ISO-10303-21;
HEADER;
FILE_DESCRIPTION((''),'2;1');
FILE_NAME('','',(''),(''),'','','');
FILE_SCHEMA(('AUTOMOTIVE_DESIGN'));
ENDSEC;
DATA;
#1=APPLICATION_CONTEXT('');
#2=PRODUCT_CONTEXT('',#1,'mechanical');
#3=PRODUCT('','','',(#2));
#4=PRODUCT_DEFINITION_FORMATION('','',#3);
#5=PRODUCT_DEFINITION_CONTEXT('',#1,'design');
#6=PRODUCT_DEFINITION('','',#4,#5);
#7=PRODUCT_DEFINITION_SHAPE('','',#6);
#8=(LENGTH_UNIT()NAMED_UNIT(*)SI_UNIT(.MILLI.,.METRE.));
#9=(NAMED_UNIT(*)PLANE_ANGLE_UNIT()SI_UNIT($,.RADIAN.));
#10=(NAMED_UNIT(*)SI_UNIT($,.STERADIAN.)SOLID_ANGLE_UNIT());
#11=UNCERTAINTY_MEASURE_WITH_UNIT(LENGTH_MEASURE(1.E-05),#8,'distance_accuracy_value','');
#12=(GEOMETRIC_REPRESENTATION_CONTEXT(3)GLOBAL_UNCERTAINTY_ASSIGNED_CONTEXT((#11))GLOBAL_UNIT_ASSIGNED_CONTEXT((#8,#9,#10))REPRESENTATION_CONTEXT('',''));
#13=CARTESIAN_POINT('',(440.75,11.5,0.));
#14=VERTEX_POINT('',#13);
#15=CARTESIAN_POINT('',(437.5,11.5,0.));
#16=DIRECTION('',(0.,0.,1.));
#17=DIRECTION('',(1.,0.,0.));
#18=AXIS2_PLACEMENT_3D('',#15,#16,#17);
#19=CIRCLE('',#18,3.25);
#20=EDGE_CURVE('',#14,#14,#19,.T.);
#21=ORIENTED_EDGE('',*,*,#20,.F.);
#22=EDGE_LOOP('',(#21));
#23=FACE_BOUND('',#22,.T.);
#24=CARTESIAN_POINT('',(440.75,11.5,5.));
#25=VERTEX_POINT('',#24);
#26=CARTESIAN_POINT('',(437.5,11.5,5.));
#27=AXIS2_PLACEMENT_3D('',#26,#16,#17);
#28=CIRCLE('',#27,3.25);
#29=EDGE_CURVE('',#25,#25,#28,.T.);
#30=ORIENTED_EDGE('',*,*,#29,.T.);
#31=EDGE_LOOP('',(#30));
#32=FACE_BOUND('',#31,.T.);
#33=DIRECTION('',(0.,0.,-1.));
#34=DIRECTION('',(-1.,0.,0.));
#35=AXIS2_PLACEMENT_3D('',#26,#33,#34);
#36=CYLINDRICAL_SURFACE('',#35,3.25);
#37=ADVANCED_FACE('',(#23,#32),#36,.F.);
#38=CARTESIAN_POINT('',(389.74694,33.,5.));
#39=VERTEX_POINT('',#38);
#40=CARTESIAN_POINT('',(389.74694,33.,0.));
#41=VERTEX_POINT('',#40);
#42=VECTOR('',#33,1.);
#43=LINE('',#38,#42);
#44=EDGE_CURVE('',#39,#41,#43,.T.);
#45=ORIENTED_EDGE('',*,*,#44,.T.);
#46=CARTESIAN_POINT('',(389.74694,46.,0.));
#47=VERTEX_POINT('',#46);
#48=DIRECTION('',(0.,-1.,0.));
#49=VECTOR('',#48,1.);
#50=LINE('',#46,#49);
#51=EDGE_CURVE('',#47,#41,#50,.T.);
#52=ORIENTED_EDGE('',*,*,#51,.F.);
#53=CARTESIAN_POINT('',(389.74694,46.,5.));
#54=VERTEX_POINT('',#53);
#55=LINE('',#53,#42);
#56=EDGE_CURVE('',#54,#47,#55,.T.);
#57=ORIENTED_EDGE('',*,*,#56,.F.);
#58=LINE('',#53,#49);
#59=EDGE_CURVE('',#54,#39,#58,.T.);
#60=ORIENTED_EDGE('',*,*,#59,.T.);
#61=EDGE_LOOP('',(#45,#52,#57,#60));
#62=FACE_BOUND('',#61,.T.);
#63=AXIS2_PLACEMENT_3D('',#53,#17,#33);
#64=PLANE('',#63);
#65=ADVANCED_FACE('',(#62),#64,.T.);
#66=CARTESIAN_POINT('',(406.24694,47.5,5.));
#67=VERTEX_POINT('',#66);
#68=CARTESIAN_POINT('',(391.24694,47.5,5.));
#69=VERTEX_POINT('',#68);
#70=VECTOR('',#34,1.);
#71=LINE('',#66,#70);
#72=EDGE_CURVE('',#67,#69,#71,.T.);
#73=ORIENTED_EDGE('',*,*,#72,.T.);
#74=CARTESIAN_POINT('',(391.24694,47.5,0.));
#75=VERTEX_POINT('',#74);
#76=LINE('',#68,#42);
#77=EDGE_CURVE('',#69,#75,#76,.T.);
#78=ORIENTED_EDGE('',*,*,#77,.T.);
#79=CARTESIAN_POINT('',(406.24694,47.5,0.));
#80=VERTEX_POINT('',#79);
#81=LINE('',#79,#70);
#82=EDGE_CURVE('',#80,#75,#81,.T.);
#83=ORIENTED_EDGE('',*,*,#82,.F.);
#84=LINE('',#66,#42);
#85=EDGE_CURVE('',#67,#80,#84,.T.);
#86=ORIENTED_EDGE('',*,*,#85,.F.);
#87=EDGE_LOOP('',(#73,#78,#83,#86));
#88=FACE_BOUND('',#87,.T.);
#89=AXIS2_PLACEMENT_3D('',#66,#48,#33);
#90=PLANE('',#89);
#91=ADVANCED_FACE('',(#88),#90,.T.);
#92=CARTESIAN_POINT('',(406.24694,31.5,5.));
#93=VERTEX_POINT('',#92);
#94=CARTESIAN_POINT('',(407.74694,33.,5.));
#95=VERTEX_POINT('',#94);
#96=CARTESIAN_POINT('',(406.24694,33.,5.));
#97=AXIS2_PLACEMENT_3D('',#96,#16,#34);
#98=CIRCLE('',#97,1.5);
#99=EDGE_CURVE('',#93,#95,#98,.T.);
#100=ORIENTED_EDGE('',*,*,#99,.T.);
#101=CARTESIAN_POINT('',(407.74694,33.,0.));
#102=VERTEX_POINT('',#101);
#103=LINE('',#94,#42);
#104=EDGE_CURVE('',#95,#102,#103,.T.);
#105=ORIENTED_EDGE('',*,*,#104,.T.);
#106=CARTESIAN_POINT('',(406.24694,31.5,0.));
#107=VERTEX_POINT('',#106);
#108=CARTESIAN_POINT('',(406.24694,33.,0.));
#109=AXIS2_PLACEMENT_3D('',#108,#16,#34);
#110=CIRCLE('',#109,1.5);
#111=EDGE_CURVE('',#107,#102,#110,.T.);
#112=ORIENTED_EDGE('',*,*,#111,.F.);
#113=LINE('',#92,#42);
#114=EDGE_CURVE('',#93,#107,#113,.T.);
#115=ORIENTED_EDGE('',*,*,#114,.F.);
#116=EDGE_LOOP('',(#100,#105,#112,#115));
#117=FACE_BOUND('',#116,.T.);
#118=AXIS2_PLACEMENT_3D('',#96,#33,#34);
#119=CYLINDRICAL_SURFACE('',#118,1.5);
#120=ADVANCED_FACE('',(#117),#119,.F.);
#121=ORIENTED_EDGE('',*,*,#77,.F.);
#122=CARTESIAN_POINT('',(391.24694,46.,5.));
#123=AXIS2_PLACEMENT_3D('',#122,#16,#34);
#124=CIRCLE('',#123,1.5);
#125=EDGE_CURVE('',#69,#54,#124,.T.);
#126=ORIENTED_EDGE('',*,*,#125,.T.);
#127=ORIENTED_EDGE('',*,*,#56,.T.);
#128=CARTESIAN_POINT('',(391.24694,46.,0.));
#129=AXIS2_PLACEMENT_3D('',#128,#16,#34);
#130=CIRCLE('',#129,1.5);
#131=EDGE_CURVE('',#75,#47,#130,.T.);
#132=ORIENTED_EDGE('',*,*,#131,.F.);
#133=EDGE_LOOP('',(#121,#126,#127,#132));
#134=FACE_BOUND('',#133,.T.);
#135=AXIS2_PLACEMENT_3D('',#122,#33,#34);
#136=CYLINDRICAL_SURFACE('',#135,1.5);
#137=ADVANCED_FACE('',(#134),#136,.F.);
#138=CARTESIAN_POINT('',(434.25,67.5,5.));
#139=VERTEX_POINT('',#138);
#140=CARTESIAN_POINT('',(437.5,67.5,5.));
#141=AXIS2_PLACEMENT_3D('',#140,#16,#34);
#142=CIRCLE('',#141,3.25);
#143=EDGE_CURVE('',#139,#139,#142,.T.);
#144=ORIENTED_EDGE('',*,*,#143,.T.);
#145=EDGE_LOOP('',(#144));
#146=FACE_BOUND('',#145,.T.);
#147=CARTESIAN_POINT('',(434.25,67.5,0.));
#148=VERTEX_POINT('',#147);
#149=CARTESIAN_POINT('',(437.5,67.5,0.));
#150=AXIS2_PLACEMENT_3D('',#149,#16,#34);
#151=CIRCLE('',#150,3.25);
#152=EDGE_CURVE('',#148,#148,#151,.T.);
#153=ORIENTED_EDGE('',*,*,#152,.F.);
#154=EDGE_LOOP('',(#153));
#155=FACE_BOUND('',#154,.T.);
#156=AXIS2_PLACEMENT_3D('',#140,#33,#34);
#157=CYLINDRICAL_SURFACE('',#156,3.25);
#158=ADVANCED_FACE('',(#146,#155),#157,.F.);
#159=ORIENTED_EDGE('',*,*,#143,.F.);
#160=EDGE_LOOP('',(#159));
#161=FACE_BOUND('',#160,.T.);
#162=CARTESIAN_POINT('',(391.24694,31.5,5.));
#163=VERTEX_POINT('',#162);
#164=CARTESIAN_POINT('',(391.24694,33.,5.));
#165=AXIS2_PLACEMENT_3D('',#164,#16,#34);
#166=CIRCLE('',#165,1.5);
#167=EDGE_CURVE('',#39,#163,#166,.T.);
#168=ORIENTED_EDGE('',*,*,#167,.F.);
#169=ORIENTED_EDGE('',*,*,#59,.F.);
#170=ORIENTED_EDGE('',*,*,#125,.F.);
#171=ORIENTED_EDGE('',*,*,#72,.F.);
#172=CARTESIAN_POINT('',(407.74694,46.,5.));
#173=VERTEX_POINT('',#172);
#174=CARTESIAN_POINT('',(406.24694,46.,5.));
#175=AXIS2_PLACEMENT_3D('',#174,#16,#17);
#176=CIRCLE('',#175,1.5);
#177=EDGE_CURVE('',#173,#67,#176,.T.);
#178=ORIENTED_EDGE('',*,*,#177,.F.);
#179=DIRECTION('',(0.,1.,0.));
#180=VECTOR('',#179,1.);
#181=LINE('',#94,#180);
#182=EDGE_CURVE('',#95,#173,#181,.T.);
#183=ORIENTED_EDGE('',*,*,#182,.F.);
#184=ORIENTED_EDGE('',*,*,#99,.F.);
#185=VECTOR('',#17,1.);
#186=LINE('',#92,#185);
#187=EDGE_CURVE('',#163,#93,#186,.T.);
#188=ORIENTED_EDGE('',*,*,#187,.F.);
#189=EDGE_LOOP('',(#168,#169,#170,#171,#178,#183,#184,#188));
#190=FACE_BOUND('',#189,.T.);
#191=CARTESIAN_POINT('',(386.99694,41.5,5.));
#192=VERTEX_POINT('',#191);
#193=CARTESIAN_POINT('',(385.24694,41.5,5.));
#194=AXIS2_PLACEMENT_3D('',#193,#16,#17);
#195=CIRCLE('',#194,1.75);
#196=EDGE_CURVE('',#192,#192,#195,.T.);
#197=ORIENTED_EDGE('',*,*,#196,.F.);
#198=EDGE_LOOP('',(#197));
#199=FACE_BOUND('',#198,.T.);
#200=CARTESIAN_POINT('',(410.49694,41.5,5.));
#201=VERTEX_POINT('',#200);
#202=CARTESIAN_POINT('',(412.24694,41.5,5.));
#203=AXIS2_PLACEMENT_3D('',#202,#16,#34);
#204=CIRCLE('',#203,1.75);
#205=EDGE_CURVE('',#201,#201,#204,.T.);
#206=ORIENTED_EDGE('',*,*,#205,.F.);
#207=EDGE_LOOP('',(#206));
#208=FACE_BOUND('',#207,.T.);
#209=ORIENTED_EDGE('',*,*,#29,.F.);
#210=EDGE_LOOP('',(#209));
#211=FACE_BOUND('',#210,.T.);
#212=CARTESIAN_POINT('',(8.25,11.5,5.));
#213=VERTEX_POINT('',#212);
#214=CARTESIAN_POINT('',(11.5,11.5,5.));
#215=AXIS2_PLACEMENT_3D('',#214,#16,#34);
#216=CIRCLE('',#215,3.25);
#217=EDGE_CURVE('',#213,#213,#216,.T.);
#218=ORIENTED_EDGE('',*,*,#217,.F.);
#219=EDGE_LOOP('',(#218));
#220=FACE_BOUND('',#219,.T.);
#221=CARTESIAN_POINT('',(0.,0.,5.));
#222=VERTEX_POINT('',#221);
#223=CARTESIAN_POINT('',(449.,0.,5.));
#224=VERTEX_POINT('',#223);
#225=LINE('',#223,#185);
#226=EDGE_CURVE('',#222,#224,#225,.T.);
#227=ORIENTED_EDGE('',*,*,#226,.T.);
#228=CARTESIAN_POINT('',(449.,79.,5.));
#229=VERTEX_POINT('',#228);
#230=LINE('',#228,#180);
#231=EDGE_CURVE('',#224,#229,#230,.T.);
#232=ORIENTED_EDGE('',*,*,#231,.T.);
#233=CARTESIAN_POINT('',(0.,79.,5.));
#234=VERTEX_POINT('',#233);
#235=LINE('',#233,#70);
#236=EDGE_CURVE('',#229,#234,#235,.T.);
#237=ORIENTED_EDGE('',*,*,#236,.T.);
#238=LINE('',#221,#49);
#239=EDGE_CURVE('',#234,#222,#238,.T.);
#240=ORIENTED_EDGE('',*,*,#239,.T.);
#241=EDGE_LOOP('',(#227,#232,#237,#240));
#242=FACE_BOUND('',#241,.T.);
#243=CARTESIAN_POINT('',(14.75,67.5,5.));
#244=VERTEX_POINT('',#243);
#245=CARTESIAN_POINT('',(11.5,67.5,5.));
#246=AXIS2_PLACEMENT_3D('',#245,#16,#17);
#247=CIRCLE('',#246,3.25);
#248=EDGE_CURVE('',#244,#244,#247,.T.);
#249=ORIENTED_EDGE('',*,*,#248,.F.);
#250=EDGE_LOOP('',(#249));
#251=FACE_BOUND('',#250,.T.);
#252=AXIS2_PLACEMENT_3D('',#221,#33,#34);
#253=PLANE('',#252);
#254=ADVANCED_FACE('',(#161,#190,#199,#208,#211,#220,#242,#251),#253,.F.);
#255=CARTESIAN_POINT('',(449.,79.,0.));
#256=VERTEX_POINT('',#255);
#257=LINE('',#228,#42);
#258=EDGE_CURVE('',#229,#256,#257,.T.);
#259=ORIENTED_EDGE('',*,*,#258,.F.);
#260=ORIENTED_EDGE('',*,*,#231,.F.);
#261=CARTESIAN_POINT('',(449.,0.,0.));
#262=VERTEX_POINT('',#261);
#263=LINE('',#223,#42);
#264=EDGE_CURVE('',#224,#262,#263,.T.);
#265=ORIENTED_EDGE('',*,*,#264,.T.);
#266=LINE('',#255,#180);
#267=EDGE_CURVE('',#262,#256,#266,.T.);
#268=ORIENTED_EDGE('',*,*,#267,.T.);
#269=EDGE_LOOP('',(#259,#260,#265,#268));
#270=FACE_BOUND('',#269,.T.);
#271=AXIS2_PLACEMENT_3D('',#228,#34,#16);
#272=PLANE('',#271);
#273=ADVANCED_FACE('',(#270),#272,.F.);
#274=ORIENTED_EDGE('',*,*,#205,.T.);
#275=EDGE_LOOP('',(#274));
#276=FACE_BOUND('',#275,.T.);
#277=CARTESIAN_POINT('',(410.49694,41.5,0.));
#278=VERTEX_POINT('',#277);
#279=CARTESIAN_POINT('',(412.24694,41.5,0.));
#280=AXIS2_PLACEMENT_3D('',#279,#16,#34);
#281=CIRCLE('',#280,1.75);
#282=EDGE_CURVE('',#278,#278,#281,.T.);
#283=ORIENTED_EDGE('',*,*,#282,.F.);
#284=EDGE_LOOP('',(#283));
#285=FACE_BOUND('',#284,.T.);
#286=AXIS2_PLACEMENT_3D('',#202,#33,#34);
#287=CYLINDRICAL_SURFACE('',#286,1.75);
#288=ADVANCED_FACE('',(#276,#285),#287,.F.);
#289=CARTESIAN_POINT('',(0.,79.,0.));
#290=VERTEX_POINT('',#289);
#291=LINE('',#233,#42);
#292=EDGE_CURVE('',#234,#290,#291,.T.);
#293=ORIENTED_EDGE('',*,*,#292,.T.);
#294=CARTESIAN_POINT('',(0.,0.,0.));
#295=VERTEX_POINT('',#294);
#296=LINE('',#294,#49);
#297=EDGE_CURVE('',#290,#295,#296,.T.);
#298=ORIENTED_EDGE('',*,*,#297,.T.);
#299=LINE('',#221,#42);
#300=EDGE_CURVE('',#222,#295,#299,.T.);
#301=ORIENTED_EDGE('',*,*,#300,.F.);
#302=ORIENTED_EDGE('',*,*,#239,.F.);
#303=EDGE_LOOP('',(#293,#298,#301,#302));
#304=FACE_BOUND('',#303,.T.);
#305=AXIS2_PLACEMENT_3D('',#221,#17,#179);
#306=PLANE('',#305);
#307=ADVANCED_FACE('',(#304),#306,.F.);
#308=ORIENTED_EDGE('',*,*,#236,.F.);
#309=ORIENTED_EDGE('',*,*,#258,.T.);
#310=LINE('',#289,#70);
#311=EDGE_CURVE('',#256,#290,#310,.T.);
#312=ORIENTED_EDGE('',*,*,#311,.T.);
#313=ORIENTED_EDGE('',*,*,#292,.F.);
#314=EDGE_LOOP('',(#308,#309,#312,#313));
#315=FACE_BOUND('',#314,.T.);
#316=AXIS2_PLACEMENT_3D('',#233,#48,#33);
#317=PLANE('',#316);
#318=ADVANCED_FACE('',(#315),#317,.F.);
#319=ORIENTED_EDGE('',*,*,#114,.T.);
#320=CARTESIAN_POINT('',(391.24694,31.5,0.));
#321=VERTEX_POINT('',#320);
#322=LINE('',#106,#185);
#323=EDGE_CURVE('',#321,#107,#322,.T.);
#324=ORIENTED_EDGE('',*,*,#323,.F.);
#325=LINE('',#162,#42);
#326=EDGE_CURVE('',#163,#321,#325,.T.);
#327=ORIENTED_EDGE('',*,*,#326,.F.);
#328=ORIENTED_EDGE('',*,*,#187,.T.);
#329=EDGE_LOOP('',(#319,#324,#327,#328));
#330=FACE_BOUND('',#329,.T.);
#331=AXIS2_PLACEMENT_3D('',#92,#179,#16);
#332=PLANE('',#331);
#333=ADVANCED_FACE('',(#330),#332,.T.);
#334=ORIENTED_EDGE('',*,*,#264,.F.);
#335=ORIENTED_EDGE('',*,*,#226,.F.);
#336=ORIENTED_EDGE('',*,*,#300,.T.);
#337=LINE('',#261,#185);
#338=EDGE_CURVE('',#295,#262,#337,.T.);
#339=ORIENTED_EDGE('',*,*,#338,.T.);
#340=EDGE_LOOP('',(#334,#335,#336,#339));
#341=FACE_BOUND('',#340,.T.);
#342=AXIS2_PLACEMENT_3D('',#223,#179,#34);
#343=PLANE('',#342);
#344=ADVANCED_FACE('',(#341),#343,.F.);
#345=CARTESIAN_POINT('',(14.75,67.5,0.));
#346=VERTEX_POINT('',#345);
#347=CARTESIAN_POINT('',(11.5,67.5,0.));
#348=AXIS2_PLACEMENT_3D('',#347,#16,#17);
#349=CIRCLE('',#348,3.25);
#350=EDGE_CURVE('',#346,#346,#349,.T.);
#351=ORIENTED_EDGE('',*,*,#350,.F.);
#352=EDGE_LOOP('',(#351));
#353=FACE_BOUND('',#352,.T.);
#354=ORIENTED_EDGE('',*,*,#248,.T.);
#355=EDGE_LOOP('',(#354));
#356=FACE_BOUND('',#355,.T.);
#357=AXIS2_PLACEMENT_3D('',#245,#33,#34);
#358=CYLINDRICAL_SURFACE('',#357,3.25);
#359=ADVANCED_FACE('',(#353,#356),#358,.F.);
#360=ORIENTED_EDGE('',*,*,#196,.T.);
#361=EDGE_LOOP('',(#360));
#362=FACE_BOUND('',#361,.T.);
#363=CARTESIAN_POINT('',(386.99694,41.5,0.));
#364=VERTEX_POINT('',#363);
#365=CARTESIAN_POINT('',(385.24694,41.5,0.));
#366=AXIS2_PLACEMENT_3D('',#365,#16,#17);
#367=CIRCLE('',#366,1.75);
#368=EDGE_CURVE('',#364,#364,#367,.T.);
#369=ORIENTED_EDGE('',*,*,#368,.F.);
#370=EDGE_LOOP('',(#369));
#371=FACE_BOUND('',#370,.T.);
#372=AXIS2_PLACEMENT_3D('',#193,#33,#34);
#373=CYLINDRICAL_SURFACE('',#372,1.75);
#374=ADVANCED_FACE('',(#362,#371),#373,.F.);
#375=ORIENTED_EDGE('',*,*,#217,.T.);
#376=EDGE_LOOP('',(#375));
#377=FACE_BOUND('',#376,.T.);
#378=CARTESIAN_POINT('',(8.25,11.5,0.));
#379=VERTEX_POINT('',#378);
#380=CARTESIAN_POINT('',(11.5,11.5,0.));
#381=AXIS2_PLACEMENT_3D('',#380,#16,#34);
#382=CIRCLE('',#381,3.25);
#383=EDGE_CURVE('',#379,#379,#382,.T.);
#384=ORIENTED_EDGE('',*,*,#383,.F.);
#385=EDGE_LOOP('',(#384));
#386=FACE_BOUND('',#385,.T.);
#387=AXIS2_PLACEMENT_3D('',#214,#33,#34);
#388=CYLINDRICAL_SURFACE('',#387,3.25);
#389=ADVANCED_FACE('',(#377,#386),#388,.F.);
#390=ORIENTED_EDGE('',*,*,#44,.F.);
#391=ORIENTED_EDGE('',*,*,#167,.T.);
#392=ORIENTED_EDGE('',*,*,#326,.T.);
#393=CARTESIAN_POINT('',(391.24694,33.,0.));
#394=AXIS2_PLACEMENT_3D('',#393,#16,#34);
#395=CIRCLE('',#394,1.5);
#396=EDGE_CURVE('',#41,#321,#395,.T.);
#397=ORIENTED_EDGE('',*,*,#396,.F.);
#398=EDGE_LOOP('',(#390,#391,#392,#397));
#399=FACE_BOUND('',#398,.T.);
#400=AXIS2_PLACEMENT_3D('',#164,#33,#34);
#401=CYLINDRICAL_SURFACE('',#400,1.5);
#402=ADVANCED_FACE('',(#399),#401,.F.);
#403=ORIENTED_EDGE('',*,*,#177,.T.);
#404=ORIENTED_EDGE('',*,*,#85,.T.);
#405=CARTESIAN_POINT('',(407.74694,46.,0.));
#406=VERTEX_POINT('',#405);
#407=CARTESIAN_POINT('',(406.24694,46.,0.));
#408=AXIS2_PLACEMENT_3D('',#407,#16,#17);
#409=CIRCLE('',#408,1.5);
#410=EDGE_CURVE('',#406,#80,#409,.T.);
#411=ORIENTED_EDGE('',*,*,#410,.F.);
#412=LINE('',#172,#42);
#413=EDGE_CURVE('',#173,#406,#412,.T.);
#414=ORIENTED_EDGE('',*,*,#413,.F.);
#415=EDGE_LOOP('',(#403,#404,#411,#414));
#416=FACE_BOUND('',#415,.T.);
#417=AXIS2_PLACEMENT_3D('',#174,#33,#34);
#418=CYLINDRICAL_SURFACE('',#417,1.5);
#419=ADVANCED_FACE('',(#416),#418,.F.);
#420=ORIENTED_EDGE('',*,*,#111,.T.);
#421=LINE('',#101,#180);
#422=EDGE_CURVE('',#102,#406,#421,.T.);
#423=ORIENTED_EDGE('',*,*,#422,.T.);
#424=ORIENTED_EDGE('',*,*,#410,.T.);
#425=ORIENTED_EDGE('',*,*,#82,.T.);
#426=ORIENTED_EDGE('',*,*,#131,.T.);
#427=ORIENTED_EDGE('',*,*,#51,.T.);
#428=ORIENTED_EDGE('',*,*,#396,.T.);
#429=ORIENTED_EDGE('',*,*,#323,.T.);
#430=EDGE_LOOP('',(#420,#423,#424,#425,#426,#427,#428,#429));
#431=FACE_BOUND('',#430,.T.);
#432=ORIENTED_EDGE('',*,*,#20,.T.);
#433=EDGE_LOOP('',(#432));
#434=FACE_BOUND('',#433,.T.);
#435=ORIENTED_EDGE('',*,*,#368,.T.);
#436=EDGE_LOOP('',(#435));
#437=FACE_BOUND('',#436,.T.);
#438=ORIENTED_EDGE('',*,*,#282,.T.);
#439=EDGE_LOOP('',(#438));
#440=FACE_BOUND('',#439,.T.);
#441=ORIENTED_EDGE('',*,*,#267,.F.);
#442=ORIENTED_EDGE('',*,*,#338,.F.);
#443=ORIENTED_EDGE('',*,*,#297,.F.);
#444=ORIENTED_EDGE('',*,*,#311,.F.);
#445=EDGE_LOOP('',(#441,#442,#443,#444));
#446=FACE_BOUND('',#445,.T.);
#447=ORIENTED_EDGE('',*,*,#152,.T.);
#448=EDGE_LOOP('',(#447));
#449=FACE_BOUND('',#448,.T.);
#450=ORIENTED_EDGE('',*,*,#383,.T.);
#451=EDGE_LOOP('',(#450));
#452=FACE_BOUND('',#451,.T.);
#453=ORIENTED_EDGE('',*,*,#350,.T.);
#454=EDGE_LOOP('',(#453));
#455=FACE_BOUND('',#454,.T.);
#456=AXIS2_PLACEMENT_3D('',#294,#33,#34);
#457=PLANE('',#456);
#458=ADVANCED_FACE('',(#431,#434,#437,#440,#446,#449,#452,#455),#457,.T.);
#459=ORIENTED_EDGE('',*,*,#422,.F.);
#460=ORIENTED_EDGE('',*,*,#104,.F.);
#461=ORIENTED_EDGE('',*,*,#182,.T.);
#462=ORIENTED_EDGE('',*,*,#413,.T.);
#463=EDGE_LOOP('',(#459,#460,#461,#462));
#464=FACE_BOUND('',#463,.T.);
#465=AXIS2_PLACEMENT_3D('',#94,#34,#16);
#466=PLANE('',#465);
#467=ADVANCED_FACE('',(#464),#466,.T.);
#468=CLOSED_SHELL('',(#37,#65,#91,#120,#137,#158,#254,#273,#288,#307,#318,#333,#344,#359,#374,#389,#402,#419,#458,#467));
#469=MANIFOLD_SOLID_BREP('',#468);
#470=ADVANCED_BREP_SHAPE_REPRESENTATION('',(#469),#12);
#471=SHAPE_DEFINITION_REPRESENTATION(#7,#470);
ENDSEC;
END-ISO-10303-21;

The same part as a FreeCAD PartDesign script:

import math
import FreeCAD as App
import Part
import Sketcher
from FreeCAD import Vector
Q = App.Units.Quantity

doc = App.newDocument("Part")
body = doc.addObject("PartDesign::Body", "Body")

# Sketch on XY plane
sketch1 = body.newObject("Sketcher::SketchObject", "Sketch")
sketch1.AttachmentSupport = (doc.getObject("XY_Plane"), [""])
sketch1.MapMode = "FlatFace"
sketch1.addGeometry([
    Part.LineSegment(Vector(0, 79, 0), Vector(0, 0, 0)),  # 0
    Part.LineSegment(Vector(0, 0, 0), Vector(449, 0, 0)),  # 1
    Part.LineSegment(Vector(449, 0, 0), Vector(449, 79, 0)),  # 2
    Part.LineSegment(Vector(449, 79, 0), Vector(0, 79, 0)),  # 3
    Part.Circle(Vector(11.5, 11.5, 0), Vector(0, 0, 1), 3.25),  # 4
    Part.Circle(Vector(437.5, 11.5, 0), Vector(0, 0, 1), 3.25),  # 5
    Part.Circle(Vector(11.5, 67.5, 0), Vector(0, 0, 1), 3.25),  # 6
    Part.Circle(Vector(385.24694, 41.5, 0), Vector(0, 0, 1), 1.75),  # 7
    Part.LineSegment(Vector(407.74694, 46, 0), Vector(407.74694, 33, 0)),  # 8
    Part.ArcOfCircle(Part.Circle(Vector(406.24694, 33, 0), Vector(0, 0, 1), 1.5), math.radians(-90), math.radians(0)),  # 9
    Part.LineSegment(Vector(406.24694, 31.5, 0), Vector(391.24694, 31.5, 0)),  # 10
    Part.ArcOfCircle(Part.Circle(Vector(391.24694, 33, 0), Vector(0, 0, 1), 1.5), math.radians(180), math.radians(270)),  # 11
    Part.LineSegment(Vector(389.74694, 33, 0), Vector(389.74694, 46, 0)),  # 12
    Part.ArcOfCircle(Part.Circle(Vector(391.24694, 46, 0), Vector(0, 0, 1), 1.5), math.radians(90), math.radians(180)),  # 13
    Part.LineSegment(Vector(391.24694, 47.5, 0), Vector(406.24694, 47.5, 0)),  # 14
    Part.ArcOfCircle(Part.Circle(Vector(406.24694, 46, 0), Vector(0, 0, 1), 1.5), math.radians(0), math.radians(90)),  # 15
    Part.Circle(Vector(412.24694, 41.5, 0), Vector(0, 0, 1), 1.75),  # 16
    Part.Circle(Vector(437.5, 67.5, 0), Vector(0, 0, 1), 3.25),  # 17
], False)
sketch1.addConstraint([
    Sketcher.Constraint("Coincident", 0, 2, 1, 1),
    Sketcher.Constraint("Coincident", 1, 2, 2, 1),
    Sketcher.Constraint("Coincident", 2, 2, 3, 1),
    Sketcher.Constraint("Coincident", 3, 2, 0, 1),
    Sketcher.Constraint("Tangent", 8, 2, 9, 2),
    Sketcher.Constraint("Tangent", 9, 1, 10, 1),
    Sketcher.Constraint("Tangent", 10, 2, 11, 2),
    Sketcher.Constraint("Tangent", 11, 1, 12, 1),
    Sketcher.Constraint("Tangent", 12, 2, 13, 2),
    Sketcher.Constraint("Tangent", 13, 1, 14, 1),
    Sketcher.Constraint("Tangent", 14, 2, 15, 2),
    Sketcher.Constraint("Tangent", 15, 1, 8, 1),
    Sketcher.Constraint("Vertical", 0),
    Sketcher.Constraint("Horizontal", 1),
    Sketcher.Constraint("Vertical", 2),
    Sketcher.Constraint("Horizontal", 3),
    Sketcher.Constraint("Vertical", 8),
    Sketcher.Constraint("Horizontal", 10),
    Sketcher.Constraint("Vertical", 12),
    Sketcher.Constraint("Horizontal", 14),
    Sketcher.Constraint("Coincident", 0, 2, -1, 1),
    Sketcher.Constraint("Equal", 4, 5),
    Sketcher.Constraint("Equal", 5, 6),
    Sketcher.Constraint("Equal", 9, 11),
    Sketcher.Constraint("Equal", 11, 13),
    Sketcher.Constraint("Equal", 13, 15),
    Sketcher.Constraint("Equal", 7, 16),
    Sketcher.Constraint("Equal", 6, 17),
    Sketcher.Constraint("Horizontal", 4, 3, 5, 3),
    Sketcher.Constraint("Horizontal", 7, 3, 16, 3),
    Sketcher.Constraint("Horizontal", 6, 3, 17, 3),
    Sketcher.Constraint("Vertical", 4, 3, 6, 3),
    Sketcher.Constraint("Vertical", 5, 3, 17, 3),
    Sketcher.Constraint("Diameter", 4, Q("6.5 mm")),
    Sketcher.Constraint("Diameter", 7, Q("3.5 mm")),
    Sketcher.Constraint("Radius", 9, Q("1.5 mm")),
    Sketcher.Constraint("DistanceX", 1, 1, 1, 2, Q("449 mm")),
    Sketcher.Constraint("DistanceX", 10, 2, 10, 1, Q("15 mm")),
    Sketcher.Constraint("DistanceY", 0, 2, 0, 1, Q("79 mm")),
    Sketcher.Constraint("DistanceY", 8, 2, 8, 1, Q("13 mm")),
    Sketcher.Constraint("DistanceY", -1, 1, 9, 3, Q("33 mm")),
    Sketcher.Constraint("DistanceX", 4, 3, 5, 3, Q("426 mm")),
    Sketcher.Constraint("DistanceY", 4, 3, 6, 3, Q("56 mm")),
    Sketcher.Constraint("DistanceY", 5, 3, 7, 3, Q("30 mm")),
    Sketcher.Constraint("DistanceX", 7, 3, 9, 3, Q("21 mm")),
    Sketcher.Constraint("DistanceX", 15, 3, 16, 3, Q("6 mm")),
    Sketcher.Constraint("DistanceY", 9, 1, 16, 3, Q("10 mm")),
    Sketcher.Constraint("DistanceX", -1, 1, 4, 3, Q("11.5 mm")),
    Sketcher.Constraint("DistanceX", -1, 1, 7, 3, Q("385.24694 mm")),
])
pad1 = body.newObject("PartDesign::Pad", "Pad")
pad1.Profile = sketch1
pad1.Length = 5

doc.recompute()
